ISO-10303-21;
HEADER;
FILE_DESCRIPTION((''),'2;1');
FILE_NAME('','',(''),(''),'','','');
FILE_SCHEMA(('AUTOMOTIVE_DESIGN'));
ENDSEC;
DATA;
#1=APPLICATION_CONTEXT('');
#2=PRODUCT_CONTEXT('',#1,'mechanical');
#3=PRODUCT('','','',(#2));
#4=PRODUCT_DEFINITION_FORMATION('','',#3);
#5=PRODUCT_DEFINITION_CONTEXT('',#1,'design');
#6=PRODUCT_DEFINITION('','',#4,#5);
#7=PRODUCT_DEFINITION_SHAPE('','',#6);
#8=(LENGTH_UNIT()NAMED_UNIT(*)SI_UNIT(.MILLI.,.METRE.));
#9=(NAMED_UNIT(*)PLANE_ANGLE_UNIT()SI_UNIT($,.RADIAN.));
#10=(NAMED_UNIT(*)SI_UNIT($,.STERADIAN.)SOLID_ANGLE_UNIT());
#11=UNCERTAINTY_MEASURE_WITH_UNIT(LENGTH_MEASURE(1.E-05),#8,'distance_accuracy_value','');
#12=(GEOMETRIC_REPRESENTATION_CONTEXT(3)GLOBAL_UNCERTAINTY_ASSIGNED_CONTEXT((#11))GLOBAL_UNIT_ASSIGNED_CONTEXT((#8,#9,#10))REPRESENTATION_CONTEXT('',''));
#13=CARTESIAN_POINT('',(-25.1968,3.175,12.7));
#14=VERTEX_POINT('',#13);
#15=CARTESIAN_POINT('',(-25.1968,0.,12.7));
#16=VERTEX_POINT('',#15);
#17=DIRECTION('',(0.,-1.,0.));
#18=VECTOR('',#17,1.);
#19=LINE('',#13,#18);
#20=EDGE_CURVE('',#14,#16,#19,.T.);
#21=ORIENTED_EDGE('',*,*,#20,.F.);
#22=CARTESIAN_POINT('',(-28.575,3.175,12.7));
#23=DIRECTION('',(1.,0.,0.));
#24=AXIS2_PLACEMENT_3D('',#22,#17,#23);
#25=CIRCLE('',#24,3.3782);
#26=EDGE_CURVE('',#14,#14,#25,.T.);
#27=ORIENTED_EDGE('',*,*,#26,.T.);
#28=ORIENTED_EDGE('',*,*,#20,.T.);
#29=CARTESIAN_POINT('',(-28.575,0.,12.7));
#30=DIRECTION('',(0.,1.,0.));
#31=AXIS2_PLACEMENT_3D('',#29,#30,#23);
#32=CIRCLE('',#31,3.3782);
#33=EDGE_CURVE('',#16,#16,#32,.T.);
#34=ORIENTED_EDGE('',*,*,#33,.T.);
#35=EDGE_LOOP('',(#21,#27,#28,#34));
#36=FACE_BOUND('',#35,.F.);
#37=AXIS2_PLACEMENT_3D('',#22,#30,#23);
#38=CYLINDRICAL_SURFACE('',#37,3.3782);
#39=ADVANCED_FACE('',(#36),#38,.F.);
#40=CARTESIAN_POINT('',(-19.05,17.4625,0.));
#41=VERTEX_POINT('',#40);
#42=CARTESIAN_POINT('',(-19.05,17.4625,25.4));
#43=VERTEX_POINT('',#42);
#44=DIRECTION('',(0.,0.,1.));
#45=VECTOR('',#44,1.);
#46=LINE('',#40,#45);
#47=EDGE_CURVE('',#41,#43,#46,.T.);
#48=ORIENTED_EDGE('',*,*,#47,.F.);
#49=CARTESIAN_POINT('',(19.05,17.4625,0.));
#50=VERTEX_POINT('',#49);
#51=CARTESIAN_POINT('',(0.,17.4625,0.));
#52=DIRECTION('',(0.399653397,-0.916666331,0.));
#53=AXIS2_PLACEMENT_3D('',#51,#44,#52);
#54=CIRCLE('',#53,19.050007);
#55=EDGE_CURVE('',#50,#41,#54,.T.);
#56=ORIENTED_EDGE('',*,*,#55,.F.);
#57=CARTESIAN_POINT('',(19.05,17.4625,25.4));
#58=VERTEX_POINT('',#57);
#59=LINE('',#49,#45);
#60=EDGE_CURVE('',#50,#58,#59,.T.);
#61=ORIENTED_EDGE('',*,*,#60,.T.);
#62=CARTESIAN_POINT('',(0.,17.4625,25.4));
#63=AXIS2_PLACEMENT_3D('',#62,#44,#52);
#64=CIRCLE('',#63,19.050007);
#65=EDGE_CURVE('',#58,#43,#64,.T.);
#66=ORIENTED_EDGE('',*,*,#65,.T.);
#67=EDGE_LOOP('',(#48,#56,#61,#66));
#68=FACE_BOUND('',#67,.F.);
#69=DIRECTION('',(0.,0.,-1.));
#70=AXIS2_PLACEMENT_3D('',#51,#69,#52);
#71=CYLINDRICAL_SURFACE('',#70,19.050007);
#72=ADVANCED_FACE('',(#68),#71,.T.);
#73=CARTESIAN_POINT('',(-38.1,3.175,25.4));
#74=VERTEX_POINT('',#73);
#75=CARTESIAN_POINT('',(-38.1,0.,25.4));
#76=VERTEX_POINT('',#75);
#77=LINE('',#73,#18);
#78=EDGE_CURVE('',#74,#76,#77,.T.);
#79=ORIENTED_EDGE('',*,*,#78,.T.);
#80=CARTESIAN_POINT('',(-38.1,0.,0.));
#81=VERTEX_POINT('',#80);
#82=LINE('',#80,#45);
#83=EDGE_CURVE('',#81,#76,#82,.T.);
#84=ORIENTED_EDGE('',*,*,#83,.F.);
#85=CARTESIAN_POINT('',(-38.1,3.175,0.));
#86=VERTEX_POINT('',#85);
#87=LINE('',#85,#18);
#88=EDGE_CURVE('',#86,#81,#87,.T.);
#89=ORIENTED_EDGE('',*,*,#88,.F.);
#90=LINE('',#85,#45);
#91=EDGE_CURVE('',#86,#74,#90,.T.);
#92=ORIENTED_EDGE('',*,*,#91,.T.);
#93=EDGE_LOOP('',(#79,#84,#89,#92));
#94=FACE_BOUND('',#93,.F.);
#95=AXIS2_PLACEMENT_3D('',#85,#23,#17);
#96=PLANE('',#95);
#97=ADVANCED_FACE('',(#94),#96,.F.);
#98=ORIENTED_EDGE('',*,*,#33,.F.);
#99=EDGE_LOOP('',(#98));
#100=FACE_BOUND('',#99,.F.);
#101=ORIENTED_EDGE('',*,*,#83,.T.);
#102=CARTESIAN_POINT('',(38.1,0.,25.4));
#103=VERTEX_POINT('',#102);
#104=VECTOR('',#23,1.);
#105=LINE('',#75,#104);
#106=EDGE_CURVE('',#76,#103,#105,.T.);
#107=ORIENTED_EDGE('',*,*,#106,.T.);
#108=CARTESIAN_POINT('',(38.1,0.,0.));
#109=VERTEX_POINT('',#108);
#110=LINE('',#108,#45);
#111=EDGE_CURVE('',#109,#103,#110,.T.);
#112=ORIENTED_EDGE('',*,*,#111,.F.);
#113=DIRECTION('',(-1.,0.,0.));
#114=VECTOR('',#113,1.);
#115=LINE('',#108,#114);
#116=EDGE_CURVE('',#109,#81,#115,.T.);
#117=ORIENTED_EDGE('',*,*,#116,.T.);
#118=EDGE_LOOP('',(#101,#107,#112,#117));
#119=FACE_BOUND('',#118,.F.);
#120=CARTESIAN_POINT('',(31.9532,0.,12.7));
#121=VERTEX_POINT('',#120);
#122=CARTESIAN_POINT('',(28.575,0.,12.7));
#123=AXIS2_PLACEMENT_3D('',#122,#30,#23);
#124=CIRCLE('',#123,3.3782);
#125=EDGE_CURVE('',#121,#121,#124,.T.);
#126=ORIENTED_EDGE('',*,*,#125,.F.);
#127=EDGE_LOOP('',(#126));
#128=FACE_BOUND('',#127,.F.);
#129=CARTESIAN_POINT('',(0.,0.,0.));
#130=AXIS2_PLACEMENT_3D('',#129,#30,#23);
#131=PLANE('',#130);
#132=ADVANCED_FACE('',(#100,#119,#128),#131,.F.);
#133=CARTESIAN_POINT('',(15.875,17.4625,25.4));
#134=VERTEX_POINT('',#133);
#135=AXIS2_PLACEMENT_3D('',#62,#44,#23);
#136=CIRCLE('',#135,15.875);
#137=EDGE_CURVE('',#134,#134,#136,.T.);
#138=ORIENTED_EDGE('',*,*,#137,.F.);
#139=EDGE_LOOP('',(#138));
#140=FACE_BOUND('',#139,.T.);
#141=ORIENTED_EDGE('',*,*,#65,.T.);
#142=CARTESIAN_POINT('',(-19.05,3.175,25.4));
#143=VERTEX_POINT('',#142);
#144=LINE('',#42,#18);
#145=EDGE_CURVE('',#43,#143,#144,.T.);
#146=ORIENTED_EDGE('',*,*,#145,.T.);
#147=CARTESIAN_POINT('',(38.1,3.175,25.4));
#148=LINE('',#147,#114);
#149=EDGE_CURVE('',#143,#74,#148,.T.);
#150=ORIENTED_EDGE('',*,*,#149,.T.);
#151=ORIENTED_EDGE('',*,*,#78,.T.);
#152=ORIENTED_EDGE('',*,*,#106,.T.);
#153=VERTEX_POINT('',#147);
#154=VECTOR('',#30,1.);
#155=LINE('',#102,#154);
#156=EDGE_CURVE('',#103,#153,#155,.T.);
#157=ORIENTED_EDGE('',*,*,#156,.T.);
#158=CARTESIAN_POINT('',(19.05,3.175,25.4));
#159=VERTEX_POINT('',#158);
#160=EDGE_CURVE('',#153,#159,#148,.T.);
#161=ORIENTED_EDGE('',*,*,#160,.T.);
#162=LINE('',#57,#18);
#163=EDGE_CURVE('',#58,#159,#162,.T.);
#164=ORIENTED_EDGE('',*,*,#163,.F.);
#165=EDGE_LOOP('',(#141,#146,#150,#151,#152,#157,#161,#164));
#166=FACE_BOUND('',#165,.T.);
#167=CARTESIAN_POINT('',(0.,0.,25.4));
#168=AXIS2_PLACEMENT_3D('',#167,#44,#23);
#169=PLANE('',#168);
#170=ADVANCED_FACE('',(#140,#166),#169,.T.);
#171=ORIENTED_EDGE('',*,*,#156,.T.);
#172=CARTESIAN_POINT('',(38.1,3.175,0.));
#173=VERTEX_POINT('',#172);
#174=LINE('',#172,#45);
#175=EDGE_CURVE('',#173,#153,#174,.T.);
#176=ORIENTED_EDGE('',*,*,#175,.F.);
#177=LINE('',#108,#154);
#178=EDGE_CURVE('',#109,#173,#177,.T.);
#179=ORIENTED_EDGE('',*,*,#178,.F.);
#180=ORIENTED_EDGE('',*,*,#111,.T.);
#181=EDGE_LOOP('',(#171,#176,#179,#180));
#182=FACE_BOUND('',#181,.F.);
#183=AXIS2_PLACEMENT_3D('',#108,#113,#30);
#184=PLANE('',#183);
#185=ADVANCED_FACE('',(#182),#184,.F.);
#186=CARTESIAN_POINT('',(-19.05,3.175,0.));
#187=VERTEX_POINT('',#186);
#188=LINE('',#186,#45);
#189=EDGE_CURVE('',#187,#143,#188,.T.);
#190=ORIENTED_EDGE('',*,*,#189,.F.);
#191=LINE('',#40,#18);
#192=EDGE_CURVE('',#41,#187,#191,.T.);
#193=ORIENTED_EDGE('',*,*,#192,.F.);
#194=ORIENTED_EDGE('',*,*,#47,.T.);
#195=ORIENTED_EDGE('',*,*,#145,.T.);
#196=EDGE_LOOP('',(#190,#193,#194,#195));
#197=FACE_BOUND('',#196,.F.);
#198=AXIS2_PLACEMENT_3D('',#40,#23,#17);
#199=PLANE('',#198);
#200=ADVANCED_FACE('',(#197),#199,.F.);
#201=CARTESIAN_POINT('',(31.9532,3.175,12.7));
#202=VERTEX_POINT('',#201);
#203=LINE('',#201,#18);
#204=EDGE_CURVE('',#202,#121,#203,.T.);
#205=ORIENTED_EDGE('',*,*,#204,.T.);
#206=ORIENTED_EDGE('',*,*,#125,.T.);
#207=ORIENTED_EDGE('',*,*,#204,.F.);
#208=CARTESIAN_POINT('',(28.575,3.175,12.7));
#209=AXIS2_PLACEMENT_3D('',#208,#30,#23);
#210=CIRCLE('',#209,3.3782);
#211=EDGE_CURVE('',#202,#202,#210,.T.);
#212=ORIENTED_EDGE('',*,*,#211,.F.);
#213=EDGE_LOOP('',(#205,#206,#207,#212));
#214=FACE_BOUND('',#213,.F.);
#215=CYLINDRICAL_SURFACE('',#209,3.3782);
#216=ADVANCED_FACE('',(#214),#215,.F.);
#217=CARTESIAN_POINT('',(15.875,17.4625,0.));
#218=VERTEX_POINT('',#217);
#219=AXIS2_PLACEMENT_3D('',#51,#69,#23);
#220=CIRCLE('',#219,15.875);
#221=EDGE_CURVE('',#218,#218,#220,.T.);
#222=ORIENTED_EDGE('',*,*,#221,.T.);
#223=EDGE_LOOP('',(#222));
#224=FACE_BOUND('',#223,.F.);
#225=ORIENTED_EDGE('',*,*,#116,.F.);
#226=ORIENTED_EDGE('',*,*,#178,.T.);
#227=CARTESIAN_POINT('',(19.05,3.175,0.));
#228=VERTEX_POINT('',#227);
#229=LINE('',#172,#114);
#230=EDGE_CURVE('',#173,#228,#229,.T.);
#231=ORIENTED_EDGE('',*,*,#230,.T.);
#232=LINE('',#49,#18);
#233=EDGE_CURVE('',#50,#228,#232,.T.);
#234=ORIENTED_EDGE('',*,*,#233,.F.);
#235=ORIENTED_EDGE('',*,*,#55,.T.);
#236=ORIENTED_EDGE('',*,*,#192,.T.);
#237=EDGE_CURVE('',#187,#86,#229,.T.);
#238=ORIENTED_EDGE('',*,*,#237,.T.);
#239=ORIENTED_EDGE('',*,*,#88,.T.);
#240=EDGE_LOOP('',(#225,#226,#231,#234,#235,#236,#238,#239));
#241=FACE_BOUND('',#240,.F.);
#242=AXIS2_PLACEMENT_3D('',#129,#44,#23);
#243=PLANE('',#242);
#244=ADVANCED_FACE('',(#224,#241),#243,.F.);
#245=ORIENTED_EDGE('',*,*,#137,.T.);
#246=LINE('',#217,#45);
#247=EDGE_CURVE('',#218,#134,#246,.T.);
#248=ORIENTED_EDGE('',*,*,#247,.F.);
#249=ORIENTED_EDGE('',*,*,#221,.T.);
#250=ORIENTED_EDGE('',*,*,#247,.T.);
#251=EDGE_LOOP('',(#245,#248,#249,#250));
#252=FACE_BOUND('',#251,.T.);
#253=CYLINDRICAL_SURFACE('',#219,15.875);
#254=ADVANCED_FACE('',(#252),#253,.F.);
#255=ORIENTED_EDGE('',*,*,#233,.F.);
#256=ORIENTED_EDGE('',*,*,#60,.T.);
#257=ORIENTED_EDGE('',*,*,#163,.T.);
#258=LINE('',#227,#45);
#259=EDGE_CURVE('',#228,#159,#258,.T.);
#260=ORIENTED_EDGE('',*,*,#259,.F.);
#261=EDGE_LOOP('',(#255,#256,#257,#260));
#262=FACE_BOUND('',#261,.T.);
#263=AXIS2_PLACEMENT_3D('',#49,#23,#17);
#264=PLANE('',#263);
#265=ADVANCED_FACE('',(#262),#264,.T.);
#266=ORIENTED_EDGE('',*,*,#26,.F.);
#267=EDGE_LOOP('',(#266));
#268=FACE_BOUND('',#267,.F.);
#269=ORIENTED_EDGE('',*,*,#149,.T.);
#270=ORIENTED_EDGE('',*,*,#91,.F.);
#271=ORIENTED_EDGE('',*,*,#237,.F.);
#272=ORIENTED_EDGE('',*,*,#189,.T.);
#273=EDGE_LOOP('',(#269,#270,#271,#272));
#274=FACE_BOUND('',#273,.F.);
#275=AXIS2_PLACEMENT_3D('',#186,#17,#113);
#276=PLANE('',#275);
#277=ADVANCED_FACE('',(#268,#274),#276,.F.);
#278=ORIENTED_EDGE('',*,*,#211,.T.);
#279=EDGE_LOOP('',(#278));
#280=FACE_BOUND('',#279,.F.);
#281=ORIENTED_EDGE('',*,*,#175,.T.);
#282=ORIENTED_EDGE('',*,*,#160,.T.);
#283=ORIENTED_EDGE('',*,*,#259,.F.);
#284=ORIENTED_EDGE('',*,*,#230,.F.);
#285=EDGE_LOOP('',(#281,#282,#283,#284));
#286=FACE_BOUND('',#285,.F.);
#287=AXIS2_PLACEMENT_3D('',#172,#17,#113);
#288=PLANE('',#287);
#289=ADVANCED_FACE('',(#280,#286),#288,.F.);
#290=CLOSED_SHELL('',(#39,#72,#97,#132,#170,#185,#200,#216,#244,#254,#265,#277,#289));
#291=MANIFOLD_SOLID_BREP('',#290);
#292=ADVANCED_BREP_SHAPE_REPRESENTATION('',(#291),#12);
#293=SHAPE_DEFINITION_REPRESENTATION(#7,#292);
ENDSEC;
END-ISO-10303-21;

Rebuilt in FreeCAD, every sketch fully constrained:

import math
import FreeCAD as App
import Part
import Sketcher
Q = App.Units.Quantity

doc = App.newDocument("Part")
body = doc.addObject("PartDesign::Body", "Body")

# Sketch on XY plane
sketch1 = body.newObject("Sketcher::SketchObject", "Sketch")
sketch1.AttachmentSupport = (doc.getObject("XY_Plane"), [""])
sketch1.MapMode = "FlatFace"
sketch1.addGeometry(Part.LineSegment(App.Vector(38.1, 0, 0), App.Vector(38.1, 3.2, 0)), False)
sketch1.addGeometry(Part.LineSegment(App.Vector(38.1, 3.2, 0), App.Vector(19.1, 3.2, 0)), False)
sketch1.addGeometry(Part.LineSegment(App.Vector(19.1, 3.2, 0), App.Vector(19.1, 17.5, 0)), False)
sketch1.addGeometry(Part.ArcOfCircle(Part.Circle(App.Vector(0, 17.5, 0), App.Vector(0, 0, 1), 19.1), math.radians(0), math.radians(180)), False)
sketch1.addGeometry(Part.LineSegment(App.Vector(-19.1, 17.5, 0), App.Vector(-19.1, 3.2, 0)), False)
sketch1.addGeometry(Part.LineSegment(App.Vector(-19.1, 3.2, 0), App.Vector(-38.1, 3.2, 0)), False)
sketch1.addGeometry(Part.LineSegment(App.Vector(-38.1, 3.2, 0), App.Vector(-38.1, 0, 0)), False)
sketch1.addGeometry(Part.LineSegment(App.Vector(-38.1, 0, 0), App.Vector(38.1, 0, 0)), False)
sketch1.addGeometry(Part.Circle(App.Vector(0, 17.5, 0), App.Vector(0, 0, 1), 15.9), False)
sketch1.addConstraint(Sketcher.Constraint("Coincident", 0, 2, 1, 1))
sketch1.addConstraint(Sketcher.Constraint("Coincident", 1, 2, 2, 1))
sketch1.addConstraint(Sketcher.Constraint("Tangent", 2, 2, 3, 1))
sketch1.addConstraint(Sketcher.Constraint("Tangent", 3, 2, 4, 1))
sketch1.addConstraint(Sketcher.Constraint("Coincident", 4, 2, 5, 1))
sketch1.addConstraint(Sketcher.Constraint("Coincident", 5, 2, 6, 1))
sketch1.addConstraint(Sketcher.Constraint("Coincident", 6, 2, 7, 1))
sketch1.addConstraint(Sketcher.Constraint("Coincident", 7, 2, 0, 1))
sketch1.addConstraint(Sketcher.Constraint("Vertical", 0))
sketch1.addConstraint(Sketcher.Constraint("Horizontal", 1))
sketch1.addConstraint(Sketcher.Constraint("Vertical", 2))
sketch1.addConstraint(Sketcher.Constraint("Vertical", 4))
sketch1.addConstraint(Sketcher.Constraint("Horizontal", 5))
sketch1.addConstraint(Sketcher.Constraint("Vertical", 6))
sketch1.addConstraint(Sketcher.Constraint("Horizontal", 7))
sketch1.addConstraint(Sketcher.Constraint("Coincident", 8, 3, 3, 3))
sketch1.addConstraint(Sketcher.Constraint("Symmetric", 6, 2, 7, 2, -1, 1))
sketch1.addConstraint(Sketcher.Constraint("Symmetric", 1, 2, 4, 2, -2))
sketch1.addConstraint(Sketcher.Constraint("Diameter", 8, Q("1.25 in")))
sketch1.addConstraint(Sketcher.Constraint("Radius", 3, Q("0.75 in")))
sketch1.addConstraint(Sketcher.Constraint("DistanceX", -1, 1, 0, 2, Q("1.5 in")))
sketch1.addConstraint(Sketcher.Constraint("DistanceY", 0, 1, 0, 2, Q("0.125 in")))
sketch1.addConstraint(Sketcher.Constraint("DistanceY", -1, 1, 3, 3, Q("0.6875 in")))
pad1 = body.newObject("PartDesign::Pad", "Pad")
pad1.Profile = sketch1
pad1.Length = Q("1 in")

# Sketch on XZ plane
sketch2 = body.newObject("Sketcher::SketchObject", "Sketch001")
sketch2.AttachmentSupport = (doc.getObject("XZ_Plane"), [""])
sketch2.MapMode = "FlatFace"
sketch2.AttachmentOffset = App.Placement(App.Vector(0, 0, -0.125 * 25.4), App.Rotation())
sketch2.addGeometry(Part.Circle(App.Vector(28.6, 12.7, 0), App.Vector(0, 0, 1), 3.4), False)
sketch2.addGeometry(Part.Circle(App.Vector(-28.6, 12.7, 0), App.Vector(0, 0, 1), 3.4), False)
sketch2.addConstraint(Sketcher.Constraint("Equal", 0, 1))
sketch2.addConstraint(Sketcher.Constraint("Symmetric", 0, 3, 1, 3, -2))
sketch2.addConstraint(Sketcher.Constraint("Diameter", 0, Q("0.266 in")))
sketch2.addConstraint(Sketcher.Constraint("DistanceY", -1, 1, 0, 3, Q("0.5 in")))
sketch2.addConstraint(Sketcher.Constraint("DistanceX", 1, 3, 0, 3, Q("2.25 in")))
pocket1 = body.newObject("PartDesign::Pocket", "Pocket")
pocket1.Profile = sketch2
pocket1.Length = Q("1 in")
pocket1.Reversed = True

doc.recompute()
